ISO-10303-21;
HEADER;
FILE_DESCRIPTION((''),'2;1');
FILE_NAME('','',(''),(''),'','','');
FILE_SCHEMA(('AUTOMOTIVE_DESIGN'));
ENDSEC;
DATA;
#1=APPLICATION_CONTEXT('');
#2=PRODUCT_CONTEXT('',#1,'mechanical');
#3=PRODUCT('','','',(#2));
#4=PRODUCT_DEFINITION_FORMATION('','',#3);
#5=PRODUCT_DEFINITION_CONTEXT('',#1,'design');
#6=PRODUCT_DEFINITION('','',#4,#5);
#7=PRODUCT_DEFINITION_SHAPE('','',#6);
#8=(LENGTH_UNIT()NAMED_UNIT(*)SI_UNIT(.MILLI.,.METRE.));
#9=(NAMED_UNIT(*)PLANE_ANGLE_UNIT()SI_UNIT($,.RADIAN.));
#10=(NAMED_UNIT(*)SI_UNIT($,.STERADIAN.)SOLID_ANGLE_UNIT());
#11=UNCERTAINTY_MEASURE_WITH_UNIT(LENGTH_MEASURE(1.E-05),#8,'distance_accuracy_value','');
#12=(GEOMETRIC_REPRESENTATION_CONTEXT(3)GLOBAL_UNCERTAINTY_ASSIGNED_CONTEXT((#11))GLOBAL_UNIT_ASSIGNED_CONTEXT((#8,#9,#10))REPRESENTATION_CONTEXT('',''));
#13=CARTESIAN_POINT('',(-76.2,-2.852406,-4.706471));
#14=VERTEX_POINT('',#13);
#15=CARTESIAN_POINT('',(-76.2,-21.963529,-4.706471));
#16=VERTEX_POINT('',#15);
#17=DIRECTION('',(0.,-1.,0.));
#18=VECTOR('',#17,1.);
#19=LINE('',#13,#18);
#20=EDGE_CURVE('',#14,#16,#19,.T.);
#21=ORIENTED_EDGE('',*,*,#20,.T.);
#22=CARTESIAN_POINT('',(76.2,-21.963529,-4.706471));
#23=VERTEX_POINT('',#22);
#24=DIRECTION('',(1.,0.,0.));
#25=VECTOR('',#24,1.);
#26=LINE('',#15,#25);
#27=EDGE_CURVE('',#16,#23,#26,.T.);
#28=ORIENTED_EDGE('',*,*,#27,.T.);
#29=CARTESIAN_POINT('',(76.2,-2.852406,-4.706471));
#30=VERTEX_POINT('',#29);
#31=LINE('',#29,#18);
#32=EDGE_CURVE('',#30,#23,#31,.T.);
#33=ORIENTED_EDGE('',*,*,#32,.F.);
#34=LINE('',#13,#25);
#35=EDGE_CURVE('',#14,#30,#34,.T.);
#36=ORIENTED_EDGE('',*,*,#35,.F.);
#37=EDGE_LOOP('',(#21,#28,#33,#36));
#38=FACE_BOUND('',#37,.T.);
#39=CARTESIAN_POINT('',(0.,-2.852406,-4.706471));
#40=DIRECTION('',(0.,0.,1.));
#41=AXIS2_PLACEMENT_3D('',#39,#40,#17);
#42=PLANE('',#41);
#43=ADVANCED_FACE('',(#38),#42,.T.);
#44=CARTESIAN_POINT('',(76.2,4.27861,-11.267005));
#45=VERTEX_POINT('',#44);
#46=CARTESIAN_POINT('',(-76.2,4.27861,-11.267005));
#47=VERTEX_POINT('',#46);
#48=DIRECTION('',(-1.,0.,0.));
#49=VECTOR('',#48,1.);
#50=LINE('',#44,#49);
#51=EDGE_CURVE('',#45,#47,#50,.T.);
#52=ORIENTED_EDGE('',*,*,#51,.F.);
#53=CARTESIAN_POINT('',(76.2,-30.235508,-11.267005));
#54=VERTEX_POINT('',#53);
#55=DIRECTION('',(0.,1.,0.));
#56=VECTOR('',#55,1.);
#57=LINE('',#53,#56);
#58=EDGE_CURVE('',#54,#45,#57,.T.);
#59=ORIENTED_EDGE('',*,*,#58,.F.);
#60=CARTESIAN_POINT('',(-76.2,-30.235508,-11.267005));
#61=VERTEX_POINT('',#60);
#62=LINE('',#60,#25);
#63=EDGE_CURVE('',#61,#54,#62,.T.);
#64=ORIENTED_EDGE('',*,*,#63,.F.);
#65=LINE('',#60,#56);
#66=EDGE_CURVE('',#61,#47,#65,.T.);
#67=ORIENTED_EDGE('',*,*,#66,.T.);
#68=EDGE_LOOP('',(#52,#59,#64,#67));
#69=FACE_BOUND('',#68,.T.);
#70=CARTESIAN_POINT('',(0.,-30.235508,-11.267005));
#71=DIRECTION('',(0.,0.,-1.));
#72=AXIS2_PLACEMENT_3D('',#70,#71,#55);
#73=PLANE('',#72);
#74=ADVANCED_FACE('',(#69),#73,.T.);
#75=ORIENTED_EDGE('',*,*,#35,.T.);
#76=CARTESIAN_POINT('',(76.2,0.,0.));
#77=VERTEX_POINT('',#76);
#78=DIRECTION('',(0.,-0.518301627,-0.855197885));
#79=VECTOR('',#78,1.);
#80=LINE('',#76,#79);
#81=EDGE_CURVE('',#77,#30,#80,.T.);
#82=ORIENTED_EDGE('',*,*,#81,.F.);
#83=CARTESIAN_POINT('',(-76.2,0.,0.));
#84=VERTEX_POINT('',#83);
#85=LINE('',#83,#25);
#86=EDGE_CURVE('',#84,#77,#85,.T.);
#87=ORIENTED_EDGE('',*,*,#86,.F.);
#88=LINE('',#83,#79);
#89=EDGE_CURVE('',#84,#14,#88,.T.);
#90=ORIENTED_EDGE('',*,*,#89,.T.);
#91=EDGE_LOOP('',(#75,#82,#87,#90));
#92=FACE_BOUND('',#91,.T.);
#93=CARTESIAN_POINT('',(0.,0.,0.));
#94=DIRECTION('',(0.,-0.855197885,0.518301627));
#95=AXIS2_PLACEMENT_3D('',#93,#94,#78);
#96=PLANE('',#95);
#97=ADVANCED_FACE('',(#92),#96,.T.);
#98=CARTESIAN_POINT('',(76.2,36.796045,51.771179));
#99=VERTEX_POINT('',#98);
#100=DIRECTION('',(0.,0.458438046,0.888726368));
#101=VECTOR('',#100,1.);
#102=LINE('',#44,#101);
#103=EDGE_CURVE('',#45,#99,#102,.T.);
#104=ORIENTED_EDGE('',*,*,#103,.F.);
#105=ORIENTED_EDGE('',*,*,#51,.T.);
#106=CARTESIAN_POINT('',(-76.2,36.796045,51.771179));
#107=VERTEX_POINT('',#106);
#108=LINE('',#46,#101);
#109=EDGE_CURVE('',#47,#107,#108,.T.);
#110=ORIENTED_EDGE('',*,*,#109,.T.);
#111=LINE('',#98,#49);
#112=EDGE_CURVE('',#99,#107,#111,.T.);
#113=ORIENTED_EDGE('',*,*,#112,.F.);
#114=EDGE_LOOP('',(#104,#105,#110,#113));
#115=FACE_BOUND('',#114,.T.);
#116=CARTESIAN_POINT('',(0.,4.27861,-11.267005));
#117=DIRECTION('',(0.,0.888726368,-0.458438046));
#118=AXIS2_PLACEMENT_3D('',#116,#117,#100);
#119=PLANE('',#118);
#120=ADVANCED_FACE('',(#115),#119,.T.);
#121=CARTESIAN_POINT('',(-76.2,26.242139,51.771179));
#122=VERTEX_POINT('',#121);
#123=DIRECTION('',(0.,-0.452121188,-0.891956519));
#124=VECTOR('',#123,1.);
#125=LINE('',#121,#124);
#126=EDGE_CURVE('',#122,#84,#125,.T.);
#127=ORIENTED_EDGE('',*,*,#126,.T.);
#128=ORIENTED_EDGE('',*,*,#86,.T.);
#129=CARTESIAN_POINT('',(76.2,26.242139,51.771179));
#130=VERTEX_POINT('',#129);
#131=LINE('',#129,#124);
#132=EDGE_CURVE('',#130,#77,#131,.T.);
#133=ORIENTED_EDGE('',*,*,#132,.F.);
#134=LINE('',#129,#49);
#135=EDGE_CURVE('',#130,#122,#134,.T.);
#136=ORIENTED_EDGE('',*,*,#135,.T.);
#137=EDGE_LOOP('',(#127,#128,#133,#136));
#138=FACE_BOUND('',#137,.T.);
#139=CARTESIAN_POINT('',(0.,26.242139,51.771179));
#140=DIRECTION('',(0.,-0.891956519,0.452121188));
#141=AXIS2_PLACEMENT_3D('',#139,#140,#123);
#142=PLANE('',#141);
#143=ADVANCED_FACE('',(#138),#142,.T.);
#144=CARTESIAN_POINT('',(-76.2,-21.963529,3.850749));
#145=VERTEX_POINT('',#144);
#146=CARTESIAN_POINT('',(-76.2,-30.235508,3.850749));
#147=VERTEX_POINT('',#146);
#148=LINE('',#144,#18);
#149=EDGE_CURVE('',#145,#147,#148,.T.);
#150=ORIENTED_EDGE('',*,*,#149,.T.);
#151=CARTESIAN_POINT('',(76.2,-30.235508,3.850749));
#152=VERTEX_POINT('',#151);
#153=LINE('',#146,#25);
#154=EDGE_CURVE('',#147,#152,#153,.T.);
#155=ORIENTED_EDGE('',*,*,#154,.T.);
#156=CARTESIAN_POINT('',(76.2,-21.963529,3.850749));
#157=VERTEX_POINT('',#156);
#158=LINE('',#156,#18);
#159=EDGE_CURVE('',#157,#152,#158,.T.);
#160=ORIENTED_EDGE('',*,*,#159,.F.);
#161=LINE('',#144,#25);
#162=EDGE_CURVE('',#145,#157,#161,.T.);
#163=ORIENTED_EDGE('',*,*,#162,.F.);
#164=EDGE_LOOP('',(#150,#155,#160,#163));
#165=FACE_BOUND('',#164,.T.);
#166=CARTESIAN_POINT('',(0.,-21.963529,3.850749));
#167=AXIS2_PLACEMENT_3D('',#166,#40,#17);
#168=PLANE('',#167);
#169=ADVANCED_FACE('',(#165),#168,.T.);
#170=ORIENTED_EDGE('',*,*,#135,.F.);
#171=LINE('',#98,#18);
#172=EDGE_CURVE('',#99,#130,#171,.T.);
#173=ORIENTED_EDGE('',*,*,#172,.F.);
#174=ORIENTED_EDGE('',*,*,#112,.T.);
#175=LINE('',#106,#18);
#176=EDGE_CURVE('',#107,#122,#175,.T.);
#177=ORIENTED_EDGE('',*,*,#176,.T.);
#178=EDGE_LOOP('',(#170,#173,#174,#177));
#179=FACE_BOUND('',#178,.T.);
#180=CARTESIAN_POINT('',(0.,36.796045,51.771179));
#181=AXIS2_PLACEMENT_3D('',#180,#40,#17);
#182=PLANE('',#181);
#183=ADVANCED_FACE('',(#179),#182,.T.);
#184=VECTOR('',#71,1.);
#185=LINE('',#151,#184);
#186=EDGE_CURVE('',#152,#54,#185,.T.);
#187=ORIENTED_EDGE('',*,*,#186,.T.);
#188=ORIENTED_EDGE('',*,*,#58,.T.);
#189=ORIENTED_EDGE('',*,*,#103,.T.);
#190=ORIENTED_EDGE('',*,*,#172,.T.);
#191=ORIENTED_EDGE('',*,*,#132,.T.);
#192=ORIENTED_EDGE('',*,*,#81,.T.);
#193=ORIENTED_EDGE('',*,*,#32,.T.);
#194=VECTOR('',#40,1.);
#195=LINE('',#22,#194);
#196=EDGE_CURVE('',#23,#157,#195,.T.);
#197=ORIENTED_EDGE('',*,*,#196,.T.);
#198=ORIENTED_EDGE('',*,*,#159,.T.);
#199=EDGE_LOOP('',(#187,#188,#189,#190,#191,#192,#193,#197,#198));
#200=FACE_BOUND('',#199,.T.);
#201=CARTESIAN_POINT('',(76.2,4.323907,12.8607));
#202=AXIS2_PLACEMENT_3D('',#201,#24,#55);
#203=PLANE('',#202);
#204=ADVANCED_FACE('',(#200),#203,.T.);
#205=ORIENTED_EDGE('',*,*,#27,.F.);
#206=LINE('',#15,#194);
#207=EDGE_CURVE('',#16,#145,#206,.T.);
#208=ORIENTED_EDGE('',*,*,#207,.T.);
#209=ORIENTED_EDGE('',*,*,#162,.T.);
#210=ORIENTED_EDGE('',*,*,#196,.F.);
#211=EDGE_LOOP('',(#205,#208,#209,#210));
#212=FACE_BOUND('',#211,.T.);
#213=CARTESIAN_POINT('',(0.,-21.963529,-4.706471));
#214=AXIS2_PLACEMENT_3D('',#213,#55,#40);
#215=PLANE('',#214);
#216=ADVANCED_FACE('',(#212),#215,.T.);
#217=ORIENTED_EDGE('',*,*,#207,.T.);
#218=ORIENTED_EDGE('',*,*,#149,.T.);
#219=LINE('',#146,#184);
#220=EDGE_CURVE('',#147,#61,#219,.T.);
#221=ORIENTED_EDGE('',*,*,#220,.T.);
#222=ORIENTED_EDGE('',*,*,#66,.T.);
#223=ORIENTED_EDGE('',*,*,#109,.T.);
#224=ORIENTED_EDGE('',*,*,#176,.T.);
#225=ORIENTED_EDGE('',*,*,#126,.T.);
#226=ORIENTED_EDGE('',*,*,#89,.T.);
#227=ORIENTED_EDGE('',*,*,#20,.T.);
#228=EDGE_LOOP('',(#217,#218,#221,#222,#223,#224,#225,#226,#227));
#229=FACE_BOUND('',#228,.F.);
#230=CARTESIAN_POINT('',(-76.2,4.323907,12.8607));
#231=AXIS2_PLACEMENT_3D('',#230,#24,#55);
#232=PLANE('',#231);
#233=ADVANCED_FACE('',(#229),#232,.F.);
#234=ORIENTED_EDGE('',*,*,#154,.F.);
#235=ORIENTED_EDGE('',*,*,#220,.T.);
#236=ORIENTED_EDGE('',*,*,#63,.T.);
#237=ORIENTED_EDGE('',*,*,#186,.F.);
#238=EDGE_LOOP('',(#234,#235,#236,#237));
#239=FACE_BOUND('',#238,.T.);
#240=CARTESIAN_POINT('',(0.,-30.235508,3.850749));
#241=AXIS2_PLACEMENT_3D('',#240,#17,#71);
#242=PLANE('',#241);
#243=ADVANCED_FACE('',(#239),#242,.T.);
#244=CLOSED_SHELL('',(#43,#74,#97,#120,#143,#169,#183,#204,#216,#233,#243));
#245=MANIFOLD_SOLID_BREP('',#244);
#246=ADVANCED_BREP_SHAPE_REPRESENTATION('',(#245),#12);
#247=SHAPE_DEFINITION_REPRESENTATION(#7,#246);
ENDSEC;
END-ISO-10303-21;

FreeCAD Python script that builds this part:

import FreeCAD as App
import Part
import Sketcher
from FreeCAD import Vector
Q = App.Units.Quantity


def add_polygon(sketch, points):
    """Adds a closed chain of lines whose ends are joined by coincident constraints."""
    first, n = sketch.GeometryCount, len(points)
    for a, b in zip(points, points[1:] + points[:1]):
        sketch.addGeometry(Part.LineSegment(App.Vector(*a, 0), App.Vector(*b, 0)), False)
    for i in range(n):
        sketch.addConstraint(Sketcher.Constraint("Coincident", first + i, 2, first + (i + 1) % n, 1))

doc = App.newDocument("Part")
body = doc.addObject("PartDesign::Body", "Body")

# Sketch on YZ plane
sketch1 = doc.addObject("Sketcher::SketchObject", "Sketch")
body.addObject(sketch1)
sketch1.AttachmentSupport = (doc.YZ_Plane, [""])
sketch1.MapMode = "FlatFace"
add_polygon(sketch1, [(26, 52), (0, 0), (-3, -5), (-22, -5), (-22, 4), (-30, 4), (-30, -11), (4, -11), (37, 52)])  # lines 0-8
sketch1.addConstraint(Sketcher.Constraint("Horizontal", 2))
sketch1.addConstraint(Sketcher.Constraint("Vertical", 3))
sketch1.addConstraint(Sketcher.Constraint("Horizontal", 4))
sketch1.addConstraint(Sketcher.Constraint("Vertical", 5))
sketch1.addConstraint(Sketcher.Constraint("Horizontal", 6))
sketch1.addConstraint(Sketcher.Constraint("Horizontal", 8))
sketch1.addConstraint(Sketcher.Constraint("Coincident", 0, 2, -1, 1))
sketch1.addConstraint(Sketcher.Constraint("DistanceX", 4, 2, 4, 1, 8.271979))
sketch1.addConstraint(Sketcher.Constraint("DistanceY", 3, 1, 3, 2, 8.55722))
sketch1.addConstraint(Sketcher.Constraint("Distance", 1, 5.503371))
sketch1.addConstraint(Sketcher.Constraint("DistanceX", 2, 2, 2, 1, 19.111123))
sketch1.addConstraint(Sketcher.Constraint("DistanceX", 6, 1, 6, 2, 34.514118))
sketch1.addConstraint(Sketcher.Constraint("DistanceX", 8, 2, 8, 1, 10.553906))
sketch1.addConstraint(Sketcher.Constraint("DistanceY", 5, 2, 5, 1, 15.117754))
sketch1.addConstraint(Sketcher.Constraint("DistanceY", 1, 2, -1, 1, 4.706471))
sketch1.addConstraint(Sketcher.Constraint("DistanceY", -1, 1, 7, 2, 51.771179))
sketch1.addConstraint(Sketcher.Constraint("DistanceX", -1, 1, 8, 2, 26.242139))
pad1 = doc.addObject("PartDesign::Pad", "Pad")
body.addObject(pad1)
pad1.Profile = sketch1
pad1.Type = "TwoLengths"
pad1.Length = Q("3 in")
pad1.Length2 = Q("3 in")

doc.recompute()
